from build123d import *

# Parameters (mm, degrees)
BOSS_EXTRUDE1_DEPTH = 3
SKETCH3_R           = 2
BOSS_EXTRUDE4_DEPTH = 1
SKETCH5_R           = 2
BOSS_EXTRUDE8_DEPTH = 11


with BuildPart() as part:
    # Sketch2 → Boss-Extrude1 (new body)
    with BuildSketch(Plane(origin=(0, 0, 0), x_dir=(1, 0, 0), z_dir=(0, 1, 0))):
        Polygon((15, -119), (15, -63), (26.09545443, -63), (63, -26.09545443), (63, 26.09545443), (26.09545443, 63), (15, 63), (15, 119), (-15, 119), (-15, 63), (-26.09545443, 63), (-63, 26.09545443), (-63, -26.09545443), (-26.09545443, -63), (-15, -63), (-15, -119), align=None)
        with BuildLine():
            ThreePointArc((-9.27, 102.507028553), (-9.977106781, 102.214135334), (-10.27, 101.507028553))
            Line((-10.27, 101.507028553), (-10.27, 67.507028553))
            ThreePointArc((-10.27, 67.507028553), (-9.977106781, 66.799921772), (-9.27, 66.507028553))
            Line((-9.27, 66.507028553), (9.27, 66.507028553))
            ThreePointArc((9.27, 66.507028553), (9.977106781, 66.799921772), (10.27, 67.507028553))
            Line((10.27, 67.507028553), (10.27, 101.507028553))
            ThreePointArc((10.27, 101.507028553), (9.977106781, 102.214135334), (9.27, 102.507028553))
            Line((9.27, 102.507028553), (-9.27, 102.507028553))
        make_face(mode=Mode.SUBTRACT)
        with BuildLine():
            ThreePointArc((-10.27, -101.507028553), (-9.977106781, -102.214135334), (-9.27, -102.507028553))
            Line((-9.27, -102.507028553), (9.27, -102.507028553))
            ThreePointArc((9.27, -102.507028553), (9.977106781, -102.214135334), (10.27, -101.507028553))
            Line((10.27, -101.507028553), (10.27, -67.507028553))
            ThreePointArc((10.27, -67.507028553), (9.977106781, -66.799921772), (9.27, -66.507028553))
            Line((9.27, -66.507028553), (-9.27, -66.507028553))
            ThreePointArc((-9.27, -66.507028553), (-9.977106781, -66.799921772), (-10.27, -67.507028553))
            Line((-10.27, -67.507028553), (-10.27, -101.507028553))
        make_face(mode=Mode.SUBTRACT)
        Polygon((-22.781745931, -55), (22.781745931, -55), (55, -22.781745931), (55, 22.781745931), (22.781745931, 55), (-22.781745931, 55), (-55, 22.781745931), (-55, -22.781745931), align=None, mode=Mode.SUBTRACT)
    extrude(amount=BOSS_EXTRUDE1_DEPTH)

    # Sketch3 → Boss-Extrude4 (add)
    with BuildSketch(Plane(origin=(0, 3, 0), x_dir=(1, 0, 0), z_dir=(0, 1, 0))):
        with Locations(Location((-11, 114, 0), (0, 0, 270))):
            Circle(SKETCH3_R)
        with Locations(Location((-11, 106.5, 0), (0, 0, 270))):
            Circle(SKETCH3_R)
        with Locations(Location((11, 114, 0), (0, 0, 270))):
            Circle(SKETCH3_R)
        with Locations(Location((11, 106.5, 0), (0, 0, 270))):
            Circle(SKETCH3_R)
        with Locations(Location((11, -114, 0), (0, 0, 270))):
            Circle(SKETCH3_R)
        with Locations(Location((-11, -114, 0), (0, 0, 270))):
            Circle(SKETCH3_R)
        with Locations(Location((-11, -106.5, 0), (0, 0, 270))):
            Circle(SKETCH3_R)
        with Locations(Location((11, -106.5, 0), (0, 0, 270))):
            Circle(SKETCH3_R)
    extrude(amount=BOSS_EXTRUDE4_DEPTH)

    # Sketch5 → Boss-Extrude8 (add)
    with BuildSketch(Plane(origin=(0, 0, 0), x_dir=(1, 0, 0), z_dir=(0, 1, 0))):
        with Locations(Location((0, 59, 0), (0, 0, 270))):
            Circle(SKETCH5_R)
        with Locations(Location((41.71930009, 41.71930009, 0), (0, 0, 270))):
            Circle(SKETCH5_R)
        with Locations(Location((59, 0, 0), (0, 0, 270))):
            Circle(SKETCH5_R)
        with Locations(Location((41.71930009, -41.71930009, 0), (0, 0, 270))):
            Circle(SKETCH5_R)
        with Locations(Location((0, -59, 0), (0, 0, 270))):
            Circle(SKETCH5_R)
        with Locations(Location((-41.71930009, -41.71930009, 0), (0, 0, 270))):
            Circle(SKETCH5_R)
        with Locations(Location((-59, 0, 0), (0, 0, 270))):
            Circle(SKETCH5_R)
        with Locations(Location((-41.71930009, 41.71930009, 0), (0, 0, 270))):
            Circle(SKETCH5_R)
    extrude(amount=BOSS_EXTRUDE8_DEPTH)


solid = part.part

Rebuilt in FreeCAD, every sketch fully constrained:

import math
import FreeCAD as App
import Part
import Sketcher
Q = App.Units.Quantity


def add_polygon(sketch, points):
    """Adds a closed chain of lines whose ends are joined by coincident constraints."""
    first, n = sketch.GeometryCount, len(points)
    for a, b in zip(points, points[1:] + points[:1]):
        sketch.addGeometry(Part.LineSegment(App.Vector(*a, 0), App.Vector(*b, 0)), False)
    for i in range(n):
        sketch.addConstraint(Sketcher.Constraint("Coincident", first + i, 2, first + (i + 1) % n, 1))

doc = App.newDocument("Part")
body = doc.addObject("PartDesign::Body", "Body")

# Sketch on XZ plane
sketch1 = doc.addObject("Sketcher::SketchObject", "Sketch")
body.addObject(sketch1)
sketch1.AttachmentSupport = (doc.XZ_Plane, [""])
sketch1.MapMode = "FlatFace"
add_polygon(sketch1, [(15, 119), (15, 63), (26.095454, 63), (63, 26.095454), (63, -26.095454), (26.095454, -63), (15, -63), (15, -119), (-15, -119), (-15, -63), (-26.095454, -63), (-63, -26.095454), (-63, 26.095454), (-26.095454, 63), (-15, 63), (-15, 119)])  # lines 0-15
sketch1.addGeometry(Part.ArcOfCircle(Part.Circle(App.Vector(-9.27, 101.507029, 0), App.Vector(0, 0, 1), 1), math.radians(90), math.radians(180)), False)  # 16
sketch1.addGeometry(Part.LineSegment(App.Vector(-10.27, 101.507029, 0), App.Vector(-10.27, 67.507029, 0)), False)  # 17
sketch1.addGeometry(Part.ArcOfCircle(Part.Circle(App.Vector(-9.27, 67.507029, 0), App.Vector(0, 0, 1), 1), math.radians(-180), math.radians(-90)), False)  # 18
sketch1.addGeometry(Part.LineSegment(App.Vector(-9.27, 66.507029, 0), App.Vector(9.27, 66.507029, 0)), False)  # 19
sketch1.addGeometry(Part.ArcOfCircle(Part.Circle(App.Vector(9.27, 67.507029, 0), App.Vector(0, 0, 1), 1), math.radians(-90), math.radians(0)), False)  # 20
sketch1.addGeometry(Part.LineSegment(App.Vector(10.27, 67.507029, 0), App.Vector(10.27, 101.507029, 0)), False)  # 21
sketch1.addGeometry(Part.ArcOfCircle(Part.Circle(App.Vector(9.27, 101.507029, 0), App.Vector(0, 0, 1), 1), math.radians(0), math.radians(90)), False)  # 22
sketch1.addGeometry(Part.LineSegment(App.Vector(9.27, 102.507029, 0), App.Vector(-9.27, 102.507029, 0)), False)  # 23
add_polygon(sketch1, [(22.781746, 55), (-22.781746, 55), (-55, 22.781746), (-55, -22.781746), (-22.781746, -55), (22.781746, -55), (55, -22.781746), (55, 22.781746)])  # lines 24-31
sketch1.addGeometry(Part.ArcOfCircle(Part.Circle(App.Vector(-9.27, -101.507029, 0), App.Vector(0, 0, 1), 1), math.radians(-180), math.radians(-90)), False)  # 32
sketch1.addGeometry(Part.LineSegment(App.Vector(-9.27, -102.507029, 0), App.Vector(9.27, -102.507029, 0)), False)  # 33
sketch1.addGeometry(Part.ArcOfCircle(Part.Circle(App.Vector(9.27, -101.507029, 0), App.Vector(0, 0, 1), 1), math.radians(-90), math.radians(0)), False)  # 34
sketch1.addGeometry(Part.LineSegment(App.Vector(10.27, -101.507029, 0), App.Vector(10.27, -67.507029, 0)), False)  # 35
sketch1.addGeometry(Part.ArcOfCircle(Part.Circle(App.Vector(9.27, -67.507029, 0), App.Vector(0, 0, 1), 1), math.radians(0), math.radians(90)), False)  # 36
sketch1.addGeometry(Part.LineSegment(App.Vector(9.27, -66.507029, 0), App.Vector(-9.27, -66.507029, 0)), False)  # 37
sketch1.addGeometry(Part.ArcOfCircle(Part.Circle(App.Vector(-9.27, -67.507029, 0), App.Vector(0, 0, 1), 1), math.radians(90), math.radians(180)), False)  # 38
sketch1.addGeometry(Part.LineSegment(App.Vector(-10.27, -67.507029, 0), App.Vector(-10.27, -101.507029, 0)), False)  # 39
sketch1.addConstraint(Sketcher.Constraint("Tangent", 16, 2, 17, 1))
sketch1.addConstraint(Sketcher.Constraint("Tangent", 17, 2, 18, 1))
sketch1.addConstraint(Sketcher.Constraint("Tangent", 18, 2, 19, 1))
sketch1.addConstraint(Sketcher.Constraint("Tangent", 19, 2, 20, 1))
sketch1.addConstraint(Sketcher.Constraint("Tangent", 20, 2, 21, 1))
sketch1.addConstraint(Sketcher.Constraint("Tangent", 21, 2, 22, 1))
sketch1.addConstraint(Sketcher.Constraint("Tangent", 22, 2, 23, 1))
sketch1.addConstraint(Sketcher.Constraint("Tangent", 23, 2, 16, 1))
sketch1.addConstraint(Sketcher.Constraint("Tangent", 32, 2, 33, 1))
sketch1.addConstraint(Sketcher.Constraint("Tangent", 33, 2, 34, 1))
sketch1.addConstraint(Sketcher.Constraint("Tangent", 34, 2, 35, 1))
sketch1.addConstraint(Sketcher.Constraint("Tangent", 35, 2, 36, 1))
sketch1.addConstraint(Sketcher.Constraint("Tangent", 36, 2, 37, 1))
sketch1.addConstraint(Sketcher.Constraint("Tangent", 37, 2, 38, 1))
sketch1.addConstraint(Sketcher.Constraint("Tangent", 38, 2, 39, 1))
sketch1.addConstraint(Sketcher.Constraint("Tangent", 39, 2, 32, 1))
sketch1.addConstraint(Sketcher.Constraint("Vertical", 0))
sketch1.addConstraint(Sketcher.Constraint("Horizontal", 1))
sketch1.addConstraint(Sketcher.Constraint("Vertical", 3))
sketch1.addConstraint(Sketcher.Constraint("Horizontal", 5))
sketch1.addConstraint(Sketcher.Constraint("Vertical", 6))
sketch1.addConstraint(Sketcher.Constraint("Horizontal", 7))
sketch1.addConstraint(Sketcher.Constraint("Vertical", 8))
sketch1.addConstraint(Sketcher.Constraint("Horizontal", 9))
sketch1.addConstraint(Sketcher.Constraint("Vertical", 11))
sketch1.addConstraint(Sketcher.Constraint("Horizontal", 13))
sketch1.addConstraint(Sketcher.Constraint("Vertical", 14))
sketch1.addConstraint(Sketcher.Constraint("Horizontal", 15))
sketch1.addConstraint(Sketcher.Constraint("Vertical", 17))
sketch1.addConstraint(Sketcher.Constraint("Horizontal", 19))
sketch1.addConstraint(Sketcher.Constraint("Vertical", 21))
sketch1.addConstraint(Sketcher.Constraint("Horizontal", 23))
sketch1.addConstraint(Sketcher.Constraint("Horizontal", 24))
sketch1.addConstraint(Sketcher.Constraint("Vertical", 26))
sketch1.addConstraint(Sketcher.Constraint("Horizontal", 28))
sketch1.addConstraint(Sketcher.Constraint("Vertical", 30))
sketch1.addConstraint(Sketcher.Constraint("Horizontal", 33))
sketch1.addConstraint(Sketcher.Constraint("Vertical", 35))
sketch1.addConstraint(Sketcher.Constraint("Horizontal", 37))
sketch1.addConstraint(Sketcher.Constraint("Vertical", 39))
sketch1.addConstraint(Sketcher.Constraint("Equal", 16, 18))
sketch1.addConstraint(Sketcher.Constraint("Equal", 18, 20))
sketch1.addConstraint(Sketcher.Constraint("Equal", 20, 22))
sketch1.addConstraint(Sketcher.Constraint("Equal", 22, 32))
sketch1.addConstraint(Sketcher.Constraint("Equal", 32, 34))
sketch1.addConstraint(Sketcher.Constraint("Equal", 34, 36))
sketch1.addConstraint(Sketcher.Constraint("Equal", 36, 38))
sketch1.addConstraint(Sketcher.Constraint("Symmetric", 22, 3, 32, 3, -1, 1))
sketch1.addConstraint(Sketcher.Constraint("Symmetric", 18, 3, 36, 3, -1, 1))
sketch1.addConstraint(Sketcher.Constraint("Symmetric", 0, 2, 8, 2, -1, 1))
sketch1.addConstraint(Sketcher.Constraint("Symmetric", 2, 2, 10, 2, -1, 1))
sketch1.addConstraint(Sketcher.Constraint("Symmetric", 4, 2, 12, 2, -1, 1))
sketch1.addConstraint(Sketcher.Constraint("Symmetric", 6, 2, 14, 2, -1, 1))
sketch1.addConstraint(Sketcher.Constraint("Symmetric", 24, 2, 28, 2, -1, 1))
sketch1.addConstraint(Sketcher.Constraint("Symmetric", 25, 2, 29, 2, -1, 1))
sketch1.addConstraint(Sketcher.Constraint("Symmetric", 5, 2, 8, 2, -2))
sketch1.addConstraint(Sketcher.Constraint("Perpendicular", 2, 4))
sketch1.addConstraint(Sketcher.Constraint("Perpendicular", 4, 10))
sketch1.addConstraint(Sketcher.Constraint("Perpendicular", 10, 12))
sketch1.addConstraint(Sketcher.Constraint("Parallel", 12, 25))
sketch1.addConstraint(Sketcher.Constraint("Perpendicular", 25, 27))
sketch1.addConstraint(Sketcher.Constraint("Perpendicular", 29, 31))
sketch1.addConstraint(Sketcher.Constraint("Horizontal", 3, 2, 10, 2))
sketch1.addConstraint(Sketcher.Constraint("Horizontal", 26, 2, 29, 2))
sketch1.addConstraint(Sketcher.Constraint("Horizontal", 25, 2, 30, 2))
sketch1.addConstraint(Sketcher.Constraint("Vertical", 18, 3, 32, 3))
sketch1.addConstraint(Sketcher.Constraint("Vertical", 1, 2, 4, 2))
sketch1.addConstraint(Sketcher.Constraint("Equal", 28, 26))
sketch1.addConstraint(Sketcher.Constraint("Radius", 16, Q("1 mm")))
sketch1.addConstraint(Sketcher.Constraint("DistanceX", 7, 2, 7, 1, Q("30 mm")))
sketch1.addConstraint(Sketcher.Constraint("DistanceY", 0, 2, 0, 1, Q("56 mm")))
sketch1.addConstraint(Sketcher.Constraint("DistanceY", 17, 2, 17, 1, Q("34 mm")))
sketch1.addConstraint(Sketcher.Constraint("DistanceY", -1, 1, 0, 2, Q("63 mm")))
sketch1.addConstraint(Sketcher.Constraint("DistanceX", -1, 1, 2, 2, Q("63 mm")))
sketch1.addConstraint(Sketcher.Constraint("DistanceY", -1, 1, 24, 2, Q("55 mm")))
sketch1.addConstraint(Sketcher.Constraint("DistanceX", 19, 1, 19, 2, Q("18.54 mm")))
sketch1.addConstraint(Sketcher.Constraint("DistanceX", 24, 2, 24, 1, Q("45.563492 mm")))
sketch1.addConstraint(Sketcher.Constraint("DistanceY", 3, 2, 3, 1, Q("52.190909 mm")))
sketch1.addConstraint(Sketcher.Constraint("DistanceY", -1, 1, 16, 3, Q("101.507029 mm")))
pad1 = doc.addObject("PartDesign::Pad", "Pad")
body.addObject(pad1)
pad1.Profile = sketch1
pad1.Length = 3
pad1.Reversed = True

# Sketch on XZ plane
sketch2 = doc.addObject("Sketcher::SketchObject", "Sketch001")
body.addObject(sketch2)
sketch2.AttachmentSupport = (doc.XZ_Plane, [""])
sketch2.MapMode = "FlatFace"
sketch2.AttachmentOffset = App.Placement(App.Vector(0, 0, -3), App.Rotation())
sketch2.addGeometry(Part.Circle(App.Vector(-11, -114, 0), App.Vector(0, 0, 1), 2), False)
sketch2.addGeometry(Part.Circle(App.Vector(-11, -106.5, 0), App.Vector(0, 0, 1), 2), False)
sketch2.addGeometry(Part.Circle(App.Vector(11, -114, 0), App.Vector(0, 0, 1), 2), False)
sketch2.addGeometry(Part.Circle(App.Vector(11, -106.5, 0), App.Vector(0, 0, 1), 2), False)
sketch2.addGeometry(Part.Circle(App.Vector(11, 114, 0), App.Vector(0, 0, 1), 2), False)
sketch2.addGeometry(Part.Circle(App.Vector(-11, 114, 0), App.Vector(0, 0, 1), 2), False)
sketch2.addGeometry(Part.Circle(App.Vector(-11, 106.5, 0), App.Vector(0, 0, 1), 2), False)
sketch2.addGeometry(Part.Circle(App.Vector(11, 106.5, 0), App.Vector(0, 0, 1), 2), False)
sketch2.addConstraint(Sketcher.Constraint("Equal", 0, 1))
sketch2.addConstraint(Sketcher.Constraint("Equal", 1, 2))
sketch2.addConstraint(Sketcher.Constraint("Equal", 2, 3))
sketch2.addConstraint(Sketcher.Constraint("Equal", 3, 4))
sketch2.addConstraint(Sketcher.Constraint("Equal", 4, 5))
sketch2.addConstraint(Sketcher.Constraint("Equal", 5, 6))
sketch2.addConstraint(Sketcher.Constraint("Equal", 6, 7))
sketch2.addConstraint(Sketcher.Constraint("Symmetric", 0, 3, 4, 3, -1, 1))
sketch2.addConstraint(Sketcher.Constraint("Symmetric", 2, 3, 5, 3, -1, 1))
sketch2.addConstraint(Sketcher.Constraint("Symmetric", 3, 3, 6, 3, -1, 1))
sketch2.addConstraint(Sketcher.Constraint("Symmetric", 1, 3, 7, 3, -1, 1))
sketch2.addConstraint(Sketcher.Constraint("Symmetric", 0, 3, 2, 3, -2))
sketch2.addConstraint(Sketcher.Constraint("Symmetric", 1, 3, 3, 3, -2))
sketch2.addConstraint(Sketcher.Constraint("Vertical", 0, 3, 1, 3))
sketch2.addConstraint(Sketcher.Constraint("Diameter", 0, Q("4 mm")))
sketch2.addConstraint(Sketcher.Constraint("DistanceX", 0, 3, -1, 1, Q("11 mm")))
sketch2.addConstraint(Sketcher.Constraint("DistanceY", 0, 3, -1, 1, Q("114 mm")))
sketch2.addConstraint(Sketcher.Constraint("DistanceY", 1, 3, 6, 3, Q("213 mm")))
pad2 = doc.addObject("PartDesign::Pad", "Pad001")
body.addObject(pad2)
pad2.Profile = sketch2
pad2.Length = 1
pad2.Reversed = True

# Sketch on XZ plane
sketch3 = doc.addObject("Sketcher::SketchObject", "Sketch002")
body.addObject(sketch3)
sketch3.AttachmentSupport = (doc.XZ_Plane, [""])
sketch3.MapMode = "FlatFace"
sketch3.addGeometry(Part.Circle(App.Vector(0, -59, 0), App.Vector(0, 0, 1), 2), False)
sketch3.addGeometry(Part.Circle(App.Vector(41.7193, -41.7193, 0), App.Vector(0, 0, 1), 2), False)
sketch3.addGeometry(Part.Circle(App.Vector(59, 0, 0), App.Vector(0, 0, 1), 2), False)
sketch3.addGeometry(Part.Circle(App.Vector(41.7193, 41.7193, 0), App.Vector(0, 0, 1), 2), False)
sketch3.addGeometry(Part.Circle(App.Vector(0, 59, 0), App.Vector(0, 0, 1), 2), False)
sketch3.addGeometry(Part.Circle(App.Vector(-41.7193, 41.7193, 0), App.Vector(0, 0, 1), 2), False)
sketch3.addGeometry(Part.Circle(App.Vector(-59, 0, 0), App.Vector(0, 0, 1), 2), False)
sketch3.addGeometry(Part.Circle(App.Vector(-41.7193, -41.7193, 0), App.Vector(0, 0, 1), 2), False)
sketch3.addConstraint(Sketcher.Constraint("Equal", 0, 1))
sketch3.addConstraint(Sketcher.Constraint("Equal", 1, 2))
sketch3.addConstraint(Sketcher.Constraint("Equal", 2, 3))
sketch3.addConstraint(Sketcher.Constraint("Equal", 3, 4))
sketch3.addConstraint(Sketcher.Constraint("Equal", 4, 5))
sketch3.addConstraint(Sketcher.Constraint("Equal", 5, 6))
sketch3.addConstraint(Sketcher.Constraint("Equal", 6, 7))
sketch3.addConstraint(Sketcher.Constraint("Symmetric", 0, 3, 4, 3, -1, 1))
sketch3.addConstraint(Sketcher.Constraint("Symmetric", 1, 3, 5, 3, -1, 1))
sketch3.addConstraint(Sketcher.Constraint("Symmetric", 2, 3, 6, 3, -1, 1))
sketch3.addConstraint(Sketcher.Constraint("Symmetric", 3, 3, 7, 3, -1, 1))
sketch3.addConstraint(Sketcher.Constraint("Symmetric", 3, 3, 5, 3, -2))
sketch3.addConstraint(Sketcher.Constraint("PointOnObject", 0, 3, -2))
sketch3.addConstraint(Sketcher.Constraint("PointOnObject", 2, 3, -1))
sketch3.addConstraint(Sketcher.Constraint("Diameter", 0, Q("4 mm")))
sketch3.addConstraint(Sketcher.Constraint("DistanceY", 0, 3, -1, 1, Q("59 mm")))
sketch3.addConstraint(Sketcher.Constraint("DistanceX", -1, 1, 2, 3, Q("59 mm")))
sketch3.addConstraint(Sketcher.Constraint("DistanceX", -1, 1, 1, 3, Q("41.7193 mm")))
sketch3.addConstraint(Sketcher.Constraint("DistanceY", 1, 3, -1, 1, Q("41.7193 mm")))
pad3 = doc.addObject("PartDesign::Pad", "Pad002")
body.addObject(pad3)
pad3.Profile = sketch3
pad3.Length = 11
pad3.Reversed = True

doc.recompute()
